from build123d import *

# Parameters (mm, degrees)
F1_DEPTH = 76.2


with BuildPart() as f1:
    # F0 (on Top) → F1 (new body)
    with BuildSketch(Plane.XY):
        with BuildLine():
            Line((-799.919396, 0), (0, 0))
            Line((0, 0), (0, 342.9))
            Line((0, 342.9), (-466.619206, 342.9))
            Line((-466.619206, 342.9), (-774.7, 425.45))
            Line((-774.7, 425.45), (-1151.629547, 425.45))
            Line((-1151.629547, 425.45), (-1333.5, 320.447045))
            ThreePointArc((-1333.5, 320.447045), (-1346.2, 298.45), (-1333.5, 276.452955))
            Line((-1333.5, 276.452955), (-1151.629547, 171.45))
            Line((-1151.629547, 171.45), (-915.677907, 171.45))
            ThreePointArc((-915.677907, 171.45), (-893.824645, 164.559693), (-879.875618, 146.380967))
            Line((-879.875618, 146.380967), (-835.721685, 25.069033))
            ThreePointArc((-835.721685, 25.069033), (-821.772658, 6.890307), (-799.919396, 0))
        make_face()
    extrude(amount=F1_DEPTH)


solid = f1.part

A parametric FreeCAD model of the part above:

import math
import FreeCAD as App
import Part
import Sketcher
Q = App.Units.Quantity

doc = App.newDocument("Part")
body = doc.addObject("PartDesign::Body", "Body")

# Sketch on XY plane
sketch1 = body.newObject("Sketcher::SketchObject", "Sketch")
sketch1.AttachmentSupport = (doc.getObject("XY_Plane"), [""])
sketch1.MapMode = "FlatFace"
sketch1.addGeometry([
    Part.LineSegment(App.Vector(-800, 0, 0), App.Vector(0, 0, 0)),  # 0
    Part.LineSegment(App.Vector(0, 0, 0), App.Vector(0, 343, 0)),  # 1
    Part.LineSegment(App.Vector(0, 343, 0), App.Vector(-467, 343, 0)),  # 2
    Part.LineSegment(App.Vector(-467, 343, 0), App.Vector(-775, 425, 0)),  # 3
    Part.LineSegment(App.Vector(-775, 425, 0), App.Vector(-1152, 425, 0)),  # 4
    Part.LineSegment(App.Vector(-1152, 425, 0), App.Vector(-1334, 320, 0)),  # 5
    Part.ArcOfCircle(Part.Circle(App.Vector(-1321, 298, 0), App.Vector(0, 0, 1), 25), math.radians(120), math.radians(240)),  # 6
    Part.LineSegment(App.Vector(-1334, 276, 0), App.Vector(-1152, 171, 0)),  # 7
    Part.LineSegment(App.Vector(-1152, 171, 0), App.Vector(-916, 171, 0)),  # 8
    Part.ArcOfCircle(Part.Circle(App.Vector(-916, 133, 0), App.Vector(0, 0, 1), 38), math.radians(20), math.radians(90)),  # 9
    Part.LineSegment(App.Vector(-880, 146, 0), App.Vector(-836, 25, 0)),  # 10
    Part.ArcOfCircle(Part.Circle(App.Vector(-800, 38, 0), App.Vector(0, 0, 1), 38), math.radians(-160), math.radians(-90)),  # 11
], False)
sketch1.addConstraint([
    Sketcher.Constraint("Coincident", 0, 2, 1, 1),
    Sketcher.Constraint("Coincident", 1, 2, 2, 1),
    Sketcher.Constraint("Coincident", 2, 2, 3, 1),
    Sketcher.Constraint("Coincident", 3, 2, 4, 1),
    Sketcher.Constraint("Coincident", 4, 2, 5, 1),
    Sketcher.Constraint("Tangent", 5, 2, 6, 1),
    Sketcher.Constraint("Tangent", 6, 2, 7, 1),
    Sketcher.Constraint("Coincident", 7, 2, 8, 1),
    Sketcher.Constraint("Tangent", 8, 2, 9, 2),
    Sketcher.Constraint("Tangent", 9, 1, 10, 1),
    Sketcher.Constraint("Tangent", 10, 2, 11, 1),
    Sketcher.Constraint("Tangent", 11, 2, 0, 1),
    Sketcher.Constraint("Horizontal", 0),
    Sketcher.Constraint("Vertical", 1),
    Sketcher.Constraint("Horizontal", 2),
    Sketcher.Constraint("Horizontal", 4),
    Sketcher.Constraint("Horizontal", 8),
    Sketcher.Constraint("Coincident", 0, 2, -1, 1),
    Sketcher.Constraint("Equal", 9, 11),
    Sketcher.Constraint("Vertical", 5, 2, 6, 2),
    Sketcher.Constraint("Vertical", 4, 2, 7, 2),
    Sketcher.Constraint("Radius", 6, Q("1 in")),
    Sketcher.Constraint("Radius", 9, Q("1.5 in")),
    Sketcher.Constraint("DistanceY", 1, 1, 1, 2, Q("13.5 in")),
    Sketcher.Constraint("DistanceX", 6, 3, -1, 1, Q("52 in")),
    Sketcher.Constraint("Angle", 3, Q("165 deg")),
    Sketcher.Constraint("Angle", 5, Q("-150 deg")),
    Sketcher.Constraint("Angle", 10, Q("-70 deg")),
    Sketcher.Constraint("DistanceY", 6, 3, 3, 2, Q("5 in")),
    Sketcher.Constraint("DistanceX", 5, 2, 3, 2, Q("22 in")),
    Sketcher.Constraint("DistanceY", -1, 1, 6, 3, Q("11.75 in")),
    Sketcher.Constraint("DistanceX", 8, 1, 8, 2, 235.95164),
])
pad1 = body.newObject("PartDesign::Pad", "Pad")
pad1.Profile = sketch1
pad1.Length = Q("3 in")

doc.recompute()
